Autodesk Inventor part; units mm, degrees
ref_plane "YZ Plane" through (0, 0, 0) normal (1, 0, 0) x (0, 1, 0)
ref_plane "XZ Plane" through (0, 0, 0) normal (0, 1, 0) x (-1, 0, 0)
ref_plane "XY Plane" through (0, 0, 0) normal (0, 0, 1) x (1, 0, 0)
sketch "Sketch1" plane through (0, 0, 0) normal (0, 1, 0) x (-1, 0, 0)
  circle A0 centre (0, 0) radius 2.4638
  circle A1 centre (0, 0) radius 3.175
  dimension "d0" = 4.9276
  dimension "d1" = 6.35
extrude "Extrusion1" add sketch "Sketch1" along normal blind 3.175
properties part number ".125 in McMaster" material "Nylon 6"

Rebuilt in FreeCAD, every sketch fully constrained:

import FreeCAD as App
import Part
import Sketcher
Q = App.Units.Quantity

doc = App.newDocument("Part")
body = doc.addObject("PartDesign::Body", "Body")

sketch1 = body.newObject("Sketcher::SketchObject", "Sketch")
sketch1.AttachmentSupport = (doc.getObject("XZ_Plane"), [""])
sketch1.MapMode = "FlatFace"
sketch1.addGeometry([
    Part.Circle(App.Vector(0, 0, 0), App.Vector(0, 0, 1), 3.175),
    Part.Circle(App.Vector(0, 0, 0), App.Vector(0, 0, 1), 2.4638),
], False)
sketch1.addConstraint([
    Sketcher.Constraint("Coincident", 0, 3, -1, 1),
    Sketcher.Constraint("Coincident", 1, 3, -1, 1),
    Sketcher.Constraint("Diameter", 0, Q("0.25 in")),
    Sketcher.Constraint("Diameter", 1, Q("0.194 in")),
])
pad1 = body.newObject("PartDesign::Pad", "Pad")
pad1.Profile = sketch1
pad1.Length = Q("0.125 in")
pad1.Reversed = True

doc.recompute()
